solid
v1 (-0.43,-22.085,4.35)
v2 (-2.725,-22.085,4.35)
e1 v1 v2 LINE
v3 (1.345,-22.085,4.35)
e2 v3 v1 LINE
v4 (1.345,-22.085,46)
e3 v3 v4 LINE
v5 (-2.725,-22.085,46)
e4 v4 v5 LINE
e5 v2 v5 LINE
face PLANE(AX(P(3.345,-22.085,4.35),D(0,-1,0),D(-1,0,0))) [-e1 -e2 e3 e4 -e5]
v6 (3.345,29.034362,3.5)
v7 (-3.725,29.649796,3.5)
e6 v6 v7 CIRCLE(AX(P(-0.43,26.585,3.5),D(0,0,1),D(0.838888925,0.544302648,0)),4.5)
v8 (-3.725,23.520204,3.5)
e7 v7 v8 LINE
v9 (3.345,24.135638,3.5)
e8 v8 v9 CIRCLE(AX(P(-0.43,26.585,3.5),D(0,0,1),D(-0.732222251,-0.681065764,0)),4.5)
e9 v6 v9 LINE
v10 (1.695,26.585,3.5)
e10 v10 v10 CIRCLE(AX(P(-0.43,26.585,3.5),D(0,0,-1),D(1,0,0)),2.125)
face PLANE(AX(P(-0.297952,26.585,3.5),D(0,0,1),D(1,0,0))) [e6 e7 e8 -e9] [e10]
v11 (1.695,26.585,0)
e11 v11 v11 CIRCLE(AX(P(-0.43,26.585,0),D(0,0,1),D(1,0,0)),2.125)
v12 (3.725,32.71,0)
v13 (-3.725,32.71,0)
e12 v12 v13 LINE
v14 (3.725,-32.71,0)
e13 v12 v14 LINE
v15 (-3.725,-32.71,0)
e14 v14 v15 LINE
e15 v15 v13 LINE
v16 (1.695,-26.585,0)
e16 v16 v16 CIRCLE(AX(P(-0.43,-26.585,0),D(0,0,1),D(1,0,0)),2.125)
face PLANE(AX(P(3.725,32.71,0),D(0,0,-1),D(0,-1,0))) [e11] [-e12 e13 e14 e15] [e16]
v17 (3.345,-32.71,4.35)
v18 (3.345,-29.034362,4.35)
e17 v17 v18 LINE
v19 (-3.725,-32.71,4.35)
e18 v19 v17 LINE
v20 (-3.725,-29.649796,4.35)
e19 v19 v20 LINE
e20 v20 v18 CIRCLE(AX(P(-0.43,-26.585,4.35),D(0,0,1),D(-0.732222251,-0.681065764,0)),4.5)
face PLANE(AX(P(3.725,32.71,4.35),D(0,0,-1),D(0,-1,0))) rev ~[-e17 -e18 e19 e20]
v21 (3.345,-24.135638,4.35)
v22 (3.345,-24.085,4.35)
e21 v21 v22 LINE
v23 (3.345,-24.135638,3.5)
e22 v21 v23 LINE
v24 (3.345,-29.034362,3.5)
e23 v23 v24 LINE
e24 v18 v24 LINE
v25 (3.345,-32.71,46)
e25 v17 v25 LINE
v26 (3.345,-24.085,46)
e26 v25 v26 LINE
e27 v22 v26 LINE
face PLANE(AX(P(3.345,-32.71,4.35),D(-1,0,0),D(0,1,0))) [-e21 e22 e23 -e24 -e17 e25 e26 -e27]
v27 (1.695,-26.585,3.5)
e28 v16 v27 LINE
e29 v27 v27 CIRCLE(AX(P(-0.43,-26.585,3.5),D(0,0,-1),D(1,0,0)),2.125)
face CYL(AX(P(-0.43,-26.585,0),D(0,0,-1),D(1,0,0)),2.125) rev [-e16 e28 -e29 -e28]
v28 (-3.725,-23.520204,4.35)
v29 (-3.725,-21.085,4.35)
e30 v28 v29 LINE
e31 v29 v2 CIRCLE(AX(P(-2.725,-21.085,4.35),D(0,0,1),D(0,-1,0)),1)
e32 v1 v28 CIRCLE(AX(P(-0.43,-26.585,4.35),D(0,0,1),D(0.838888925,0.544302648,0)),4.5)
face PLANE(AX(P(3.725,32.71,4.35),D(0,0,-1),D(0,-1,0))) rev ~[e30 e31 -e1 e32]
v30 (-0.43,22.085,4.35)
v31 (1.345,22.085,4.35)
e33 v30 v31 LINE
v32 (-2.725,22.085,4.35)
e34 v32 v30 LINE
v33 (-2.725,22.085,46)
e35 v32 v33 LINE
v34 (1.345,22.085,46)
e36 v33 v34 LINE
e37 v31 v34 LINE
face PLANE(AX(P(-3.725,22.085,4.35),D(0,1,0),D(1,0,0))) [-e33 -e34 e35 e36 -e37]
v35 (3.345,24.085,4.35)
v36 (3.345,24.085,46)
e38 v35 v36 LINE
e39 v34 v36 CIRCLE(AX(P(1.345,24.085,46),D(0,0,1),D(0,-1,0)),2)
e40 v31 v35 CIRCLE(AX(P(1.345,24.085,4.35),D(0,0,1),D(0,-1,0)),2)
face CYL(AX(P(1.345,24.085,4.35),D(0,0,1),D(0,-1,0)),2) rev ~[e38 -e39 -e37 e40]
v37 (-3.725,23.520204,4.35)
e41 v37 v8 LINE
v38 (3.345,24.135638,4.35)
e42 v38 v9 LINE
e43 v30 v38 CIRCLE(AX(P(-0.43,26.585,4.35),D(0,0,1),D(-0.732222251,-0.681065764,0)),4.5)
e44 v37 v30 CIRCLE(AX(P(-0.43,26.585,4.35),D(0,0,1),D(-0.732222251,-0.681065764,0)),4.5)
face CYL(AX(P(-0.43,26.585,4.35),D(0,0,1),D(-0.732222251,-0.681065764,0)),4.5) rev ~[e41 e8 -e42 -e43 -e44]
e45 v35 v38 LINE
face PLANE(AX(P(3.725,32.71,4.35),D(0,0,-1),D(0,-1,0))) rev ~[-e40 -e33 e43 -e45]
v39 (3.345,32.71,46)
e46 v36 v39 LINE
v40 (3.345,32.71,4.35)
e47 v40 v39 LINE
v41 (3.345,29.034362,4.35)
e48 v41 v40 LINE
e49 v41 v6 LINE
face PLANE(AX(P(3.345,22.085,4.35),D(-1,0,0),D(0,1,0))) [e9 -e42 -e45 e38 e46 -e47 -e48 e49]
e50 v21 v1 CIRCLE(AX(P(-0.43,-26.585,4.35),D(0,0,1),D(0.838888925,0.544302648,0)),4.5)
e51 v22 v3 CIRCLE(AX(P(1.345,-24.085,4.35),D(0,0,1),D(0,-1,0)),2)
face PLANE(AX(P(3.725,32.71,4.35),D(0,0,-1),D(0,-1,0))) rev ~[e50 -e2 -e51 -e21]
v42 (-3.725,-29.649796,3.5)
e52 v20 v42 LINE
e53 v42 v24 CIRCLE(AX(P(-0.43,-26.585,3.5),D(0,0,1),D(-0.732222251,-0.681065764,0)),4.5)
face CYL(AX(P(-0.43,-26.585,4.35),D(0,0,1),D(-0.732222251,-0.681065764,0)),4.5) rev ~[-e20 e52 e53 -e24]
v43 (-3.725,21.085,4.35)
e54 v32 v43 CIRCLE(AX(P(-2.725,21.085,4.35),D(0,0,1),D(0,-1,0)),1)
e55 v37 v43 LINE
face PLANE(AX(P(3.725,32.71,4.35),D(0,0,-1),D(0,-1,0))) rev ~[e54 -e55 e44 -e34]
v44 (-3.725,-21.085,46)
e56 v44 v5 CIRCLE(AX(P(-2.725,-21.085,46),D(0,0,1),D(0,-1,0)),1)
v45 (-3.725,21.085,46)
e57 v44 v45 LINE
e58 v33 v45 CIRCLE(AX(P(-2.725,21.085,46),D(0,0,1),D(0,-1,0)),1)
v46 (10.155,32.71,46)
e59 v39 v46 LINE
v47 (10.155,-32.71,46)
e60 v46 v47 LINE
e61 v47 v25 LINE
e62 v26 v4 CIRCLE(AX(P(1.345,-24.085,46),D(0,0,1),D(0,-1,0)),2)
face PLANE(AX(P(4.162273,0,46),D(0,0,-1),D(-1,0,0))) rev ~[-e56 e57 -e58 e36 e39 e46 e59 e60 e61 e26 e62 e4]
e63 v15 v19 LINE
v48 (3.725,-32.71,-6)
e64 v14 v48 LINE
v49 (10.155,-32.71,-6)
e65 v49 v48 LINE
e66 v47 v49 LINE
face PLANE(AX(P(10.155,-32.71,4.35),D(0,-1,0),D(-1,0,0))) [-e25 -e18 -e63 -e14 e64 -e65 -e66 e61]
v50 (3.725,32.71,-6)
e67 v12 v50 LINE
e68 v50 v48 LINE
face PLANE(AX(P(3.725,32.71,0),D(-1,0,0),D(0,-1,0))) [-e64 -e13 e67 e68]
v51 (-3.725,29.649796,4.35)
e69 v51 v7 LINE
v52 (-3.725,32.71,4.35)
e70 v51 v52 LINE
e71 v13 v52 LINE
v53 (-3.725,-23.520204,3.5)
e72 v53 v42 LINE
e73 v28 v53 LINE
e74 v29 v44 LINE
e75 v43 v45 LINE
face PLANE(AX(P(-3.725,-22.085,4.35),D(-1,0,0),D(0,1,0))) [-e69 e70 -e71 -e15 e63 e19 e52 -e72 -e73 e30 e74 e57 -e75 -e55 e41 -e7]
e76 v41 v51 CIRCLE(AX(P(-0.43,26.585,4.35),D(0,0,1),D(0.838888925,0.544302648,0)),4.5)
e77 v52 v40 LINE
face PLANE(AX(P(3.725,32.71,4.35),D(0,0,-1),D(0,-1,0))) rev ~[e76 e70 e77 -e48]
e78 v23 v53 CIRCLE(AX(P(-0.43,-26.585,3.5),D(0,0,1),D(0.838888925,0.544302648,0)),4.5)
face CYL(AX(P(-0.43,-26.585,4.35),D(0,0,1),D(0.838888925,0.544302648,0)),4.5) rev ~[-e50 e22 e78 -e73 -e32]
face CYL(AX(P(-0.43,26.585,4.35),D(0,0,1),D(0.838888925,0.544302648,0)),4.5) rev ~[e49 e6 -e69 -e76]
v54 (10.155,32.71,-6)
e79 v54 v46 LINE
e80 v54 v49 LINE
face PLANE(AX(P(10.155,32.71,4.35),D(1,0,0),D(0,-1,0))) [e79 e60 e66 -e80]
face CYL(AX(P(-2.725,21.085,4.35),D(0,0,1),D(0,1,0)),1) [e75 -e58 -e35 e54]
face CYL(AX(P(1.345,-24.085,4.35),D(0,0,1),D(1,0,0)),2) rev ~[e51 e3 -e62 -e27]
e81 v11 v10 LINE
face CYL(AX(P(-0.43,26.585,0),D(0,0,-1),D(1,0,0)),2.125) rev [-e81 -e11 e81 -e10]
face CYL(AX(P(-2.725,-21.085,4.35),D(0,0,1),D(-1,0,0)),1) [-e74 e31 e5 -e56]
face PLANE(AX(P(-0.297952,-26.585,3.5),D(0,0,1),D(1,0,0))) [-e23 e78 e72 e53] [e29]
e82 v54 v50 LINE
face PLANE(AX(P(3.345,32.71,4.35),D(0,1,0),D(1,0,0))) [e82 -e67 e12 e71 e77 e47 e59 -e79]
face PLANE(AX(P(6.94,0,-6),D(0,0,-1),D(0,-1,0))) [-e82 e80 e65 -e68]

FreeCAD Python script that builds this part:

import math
import FreeCAD as App
import Part
import Sketcher
Q = App.Units.Quantity


def edges_at(feature, points):
    """Names of the edges that pass closest to the given points."""
    edges = feature.Shape.Edges
    near = lambda p: min(range(len(edges)), key=lambda i: edges[i].distToShape(Part.Vertex(*p))[0])
    return sorted({f"Edge{near(p) + 1}" for p in points})

doc = App.newDocument("Part")
body = doc.addObject("PartDesign::Body", "Body")

sketch1 = doc.addObject("Sketcher::SketchObject", "Sketch")
body.addObject(sketch1)
sketch1.AttachmentSupport = (doc.XY_Plane, [""])
sketch1.MapMode = "FlatFace"
sketch1.addGeometry([
    Part.LineSegment(App.Vector(-3.725, 32.71, 0), App.Vector(-3.725, -32.71, 0)),
    Part.LineSegment(App.Vector(-3.725, -32.71, 0), App.Vector(3.725, -32.71, 0)),
    Part.LineSegment(App.Vector(3.725, -32.71, 0), App.Vector(3.725, 32.71, 0)),
    Part.LineSegment(App.Vector(3.725, 32.71, 0), App.Vector(-3.725, 32.71, 0)),
    Part.Circle(App.Vector(-0.43, -26.585, 0), App.Vector(0, 0, 1), 2.125),
    Part.Circle(App.Vector(-0.43, 26.585, 0), App.Vector(0, 0, 1), 2.125),
], False)
sketch1.addConstraint([
    Sketcher.Constraint("Coincident", 0, 2, 1, 1),
    Sketcher.Constraint("Coincident", 1, 2, 2, 1),
    Sketcher.Constraint("Coincident", 2, 2, 3, 1),
    Sketcher.Constraint("Coincident", 3, 2, 0, 1),
    Sketcher.Constraint("Vertical", 0),
    Sketcher.Constraint("Horizontal", 1),
    Sketcher.Constraint("Vertical", 2),
    Sketcher.Constraint("Horizontal", 3),
    Sketcher.Constraint("Equal", 4, 5),
    Sketcher.Constraint("Symmetric", 0, 2, 2, 2, -1, 1),
    Sketcher.Constraint("Symmetric", 4, 3, 5, 3, -1),
    Sketcher.Constraint("Diameter", 4, Q("4.25 mm")),
    Sketcher.Constraint("DistanceX", 1, 1, 1, 2, Q("7.45 mm")),
    Sketcher.Constraint("DistanceY", 0, 2, 0, 1, Q("65.42 mm")),
    Sketcher.Constraint("DistanceX", 4, 3, -1, 1, Q("0.43 mm")),
    Sketcher.Constraint("DistanceY", 4, 3, 5, 3, Q("53.17 mm")),
])
pad1 = doc.addObject("PartDesign::Pad", "Pad")
body.addObject(pad1)
pad1.Profile = sketch1
pad1.Length = 4.35

sketch2 = doc.addObject("Sketcher::SketchObject", "Sketch001")
body.addObject(sketch2)
sketch2.AttachmentSupport = (doc.XY_Plane, [""])
sketch2.MapMode = "FlatFace"
sketch2.AttachmentOffset = App.Placement(App.Vector(0, 0, 4.35), App.Rotation())
sketch2.addGeometry([
    Part.ArcOfCircle(Part.Circle(App.Vector(-0.43, -26.585, 0), App.Vector(0, 0, 1), 4.5), math.radians(32.977022), math.radians(137.073018)),
    Part.LineSegment(App.Vector(-3.725, -23.520204, 0), App.Vector(-3.725, -29.649796, 0)),
    Part.ArcOfCircle(Part.Circle(App.Vector(-0.43, -26.585, 0), App.Vector(0, 0, 1), 4.5), math.radians(-137.073018), math.radians(-32.977022)),
    Part.LineSegment(App.Vector(3.345, -29.034362, 0), App.Vector(3.345, -24.135638, 0)),
    Part.ArcOfCircle(Part.Circle(App.Vector(-0.43, 26.585, 0), App.Vector(0, 0, 1), 4.5), math.radians(-137.073018), math.radians(-32.977022)),
    Part.LineSegment(App.Vector(3.345, 24.135638, 0), App.Vector(3.345, 29.034362, 0)),
    Part.ArcOfCircle(Part.Circle(App.Vector(-0.43, 26.585, 0), App.Vector(0, 0, 1), 4.5), math.radians(32.977022), math.radians(137.073018)),
    Part.LineSegment(App.Vector(-3.725, 29.649796, 0), App.Vector(-3.725, 23.520204, 0)),
], False)
sketch2.addConstraint([
    Sketcher.Constraint("Coincident", 0, 2, 1, 1),
    Sketcher.Constraint("Coincident", 1, 2, 2, 1),
    Sketcher.Constraint("Coincident", 2, 2, 3, 1),
    Sketcher.Constraint("Coincident", 3, 2, 0, 1),
    Sketcher.Constraint("Coincident", 4, 2, 5, 1),
    Sketcher.Constraint("Coincident", 5, 2, 6, 1),
    Sketcher.Constraint("Coincident", 6, 2, 7, 1),
    Sketcher.Constraint("Coincident", 7, 2, 4, 1),
    Sketcher.Constraint("Vertical", 1),
    Sketcher.Constraint("Vertical", 3),
    Sketcher.Constraint("Vertical", 5),
    Sketcher.Constraint("Vertical", 7),
    Sketcher.Constraint("Coincident", 2, 3, 0, 3),
    Sketcher.Constraint("Coincident", 6, 3, 4, 3),
    Sketcher.Constraint("Equal", 0, 2),
    Sketcher.Constraint("Equal", 2, 4),
    Sketcher.Constraint("Equal", 4, 6),
    Sketcher.Constraint("Symmetric", 0, 3, 4, 3, -1),
    Sketcher.Constraint("Vertical", 3, 2, 4, 2),
    Sketcher.Constraint("Vertical", 1, 2, 6, 2),
    Sketcher.Constraint("Radius", 0, Q("4.5 mm")),
    Sketcher.Constraint("DistanceX", 0, 3, -1, 1, Q("0.43 mm")),
    Sketcher.Constraint("DistanceY", 0, 3, 4, 3, Q("53.17 mm")),
    Sketcher.Constraint("DistanceX", 1, 2, 2, 2, Q("7.07 mm")),
    Sketcher.Constraint("DistanceX", 0, 2, -1, 1, Q("3.725 mm")),
])
pocket1 = doc.addObject("PartDesign::Pocket", "Pocket")
body.addObject(pocket1)
pocket1.Profile = sketch2
pocket1.Length = 0.85

sketch3 = doc.addObject("Sketcher::SketchObject", "Sketch002")
body.addObject(sketch3)
sketch3.AttachmentSupport = (doc.YZ_Plane, [""])
sketch3.MapMode = "FlatFace"
sketch3.AttachmentOffset = App.Placement(App.Vector(0, 0, 3.725), App.Rotation())
sketch3.addGeometry([
    Part.LineSegment(App.Vector(32.71, 0, 0), App.Vector(32.71, 4.35, 0)),
    Part.LineSegment(App.Vector(32.71, 4.35, 0), App.Vector(-32.71, 4.35, 0)),
    Part.LineSegment(App.Vector(-32.71, 4.35, 0), App.Vector(-32.71, 0, 0)),
    Part.LineSegment(App.Vector(-32.71, 0, 0), App.Vector(32.71, 0, 0)),
], False)
sketch3.addConstraint([
    Sketcher.Constraint("Coincident", 0, 2, 1, 1),
    Sketcher.Constraint("Coincident", 1, 2, 2, 1),
    Sketcher.Constraint("Coincident", 2, 2, 3, 1),
    Sketcher.Constraint("Coincident", 3, 2, 0, 1),
    Sketcher.Constraint("Vertical", 0),
    Sketcher.Constraint("Horizontal", 1),
    Sketcher.Constraint("Vertical", 2),
    Sketcher.Constraint("Horizontal", 3),
    Sketcher.Constraint("Symmetric", 2, 2, 3, 2, -1, 1),
    Sketcher.Constraint("DistanceX", 1, 2, 1, 1, Q("65.42 mm")),
    Sketcher.Constraint("DistanceY", 0, 1, 0, 2, Q("4.35 mm")),
])
pad2 = doc.addObject("PartDesign::Pad", "Pad001")
body.addObject(pad2)
pad2.Profile = sketch3
pad2.Length = 6.43

sketch4 = doc.addObject("Sketcher::SketchObject", "Sketch003")
body.addObject(sketch4)
sketch4.AttachmentSupport = (doc.XY_Plane, [""])
sketch4.MapMode = "FlatFace"
sketch4.addGeometry([
    Part.LineSegment(App.Vector(3.725, 32.71, 0), App.Vector(10.155, 32.71, 0)),
    Part.LineSegment(App.Vector(10.155, 32.71, 0), App.Vector(10.155, -32.71, 0)),
    Part.LineSegment(App.Vector(10.155, -32.71, 0), App.Vector(3.725, -32.71, 0)),
    Part.LineSegment(App.Vector(3.725, -32.71, 0), App.Vector(3.725, 32.71, 0)),
], False)
sketch4.addConstraint([
    Sketcher.Constraint("Coincident", 0, 2, 1, 1),
    Sketcher.Constraint("Coincident", 1, 2, 2, 1),
    Sketcher.Constraint("Coincident", 2, 2, 3, 1),
    Sketcher.Constraint("Coincident", 3, 2, 0, 1),
    Sketcher.Constraint("Horizontal", 0),
    Sketcher.Constraint("Vertical", 1),
    Sketcher.Constraint("Horizontal", 2),
    Sketcher.Constraint("Vertical", 3),
    Sketcher.Constraint("DistanceX", 0, 1, 0, 2, Q("6.43 mm")),
    Sketcher.Constraint("DistanceY", 1, 2, 1, 1, Q("65.42 mm")),
    Sketcher.Constraint("DistanceY", -1, 1, 0, 2, Q("32.71 mm")),
    Sketcher.Constraint("DistanceX", -1, 1, 0, 2, Q("10.155 mm")),
])
pad3 = doc.addObject("PartDesign::Pad", "Pad002")
body.addObject(pad3)
pad3.Profile = sketch4
pad3.Length = 6
pad3.Reversed = True

sketch5 = doc.addObject("Sketcher::SketchObject", "Sketch004")
body.addObject(sketch5)
sketch5.AttachmentSupport = (doc.XY_Plane, [""])
sketch5.MapMode = "FlatFace"
sketch5.AttachmentOffset = App.Placement(App.Vector(0, 0, 4.35), App.Rotation())
sketch5.addGeometry([
    Part.LineSegment(App.Vector(10.155, -32.71, 0), App.Vector(10.155, 32.71, 0)),
    Part.LineSegment(App.Vector(10.155, 32.71, 0), App.Vector(3.345, 32.71, 0)),
    Part.LineSegment(App.Vector(3.345, 32.71, 0), App.Vector(3.345, 22.085, 0)),
    Part.LineSegment(App.Vector(3.345, 22.085, 0), App.Vector(-3.725, 22.085, 0)),
    Part.LineSegment(App.Vector(-3.725, 22.085, 0), App.Vector(-3.725, -22.085, 0)),
    Part.LineSegment(App.Vector(-3.725, -22.085, 0), App.Vector(3.345, -22.085, 0)),
    Part.LineSegment(App.Vector(3.345, -22.085, 0), App.Vector(3.345, -32.71, 0)),
    Part.LineSegment(App.Vector(3.345, -32.71, 0), App.Vector(10.155, -32.71, 0)),
], False)
sketch5.addConstraint([
    Sketcher.Constraint("Coincident", 0, 2, 1, 1),
    Sketcher.Constraint("Coincident", 1, 2, 2, 1),
    Sketcher.Constraint("Coincident", 2, 2, 3, 1),
    Sketcher.Constraint("Coincident", 3, 2, 4, 1),
    Sketcher.Constraint("Coincident", 4, 2, 5, 1),
    Sketcher.Constraint("Coincident", 5, 2, 6, 1),
    Sketcher.Constraint("Coincident", 6, 2, 7, 1),
    Sketcher.Constraint("Coincident", 7, 2, 0, 1),
    Sketcher.Constraint("Vertical", 0),
    Sketcher.Constraint("Horizontal", 1),
    Sketcher.Constraint("Vertical", 2),
    Sketcher.Constraint("Horizontal", 3),
    Sketcher.Constraint("Vertical", 4),
    Sketcher.Constraint("Horizontal", 5),
    Sketcher.Constraint("Vertical", 6),
    Sketcher.Constraint("Horizontal", 7),
    Sketcher.Constraint("Symmetric", 2, 2, 5, 2, -1),
    Sketcher.Constraint("Equal", 2, 6),
    Sketcher.Constraint("DistanceX", 1, 2, 1, 1, Q("6.81 mm")),
    Sketcher.Constraint("DistanceX", 3, 2, 3, 1, Q("7.07 mm")),
    Sketcher.Constraint("DistanceY", 0, 1, 0, 2, Q("65.42 mm")),
    Sketcher.Constraint("DistanceY", 4, 2, 4, 1, Q("44.17 mm")),
    Sketcher.Constraint("DistanceX", -1, 1, 0, 2, Q("10.155 mm")),
])
pad4 = doc.addObject("PartDesign::Pad", "Pad003")
body.addObject(pad4)
pad4.Profile = sketch5
pad4.Length = 41.65
doc.recompute()

fillet = doc.addObject("PartDesign::Fillet", "Fillet")
body.addObject(fillet)
fillet.Base = (pad4, edges_at(pad4, [(3.345, -22.085, 25.175), (3.345, 22.085, 25.175)]))
fillet.Radius = 2
doc.recompute()

fillet2 = doc.addObject("PartDesign::Fillet", "Fillet001")
body.addObject(fillet2)
fillet2.Base = (fillet, edges_at(fillet, [(-3.725, -22.085, 25.175), (-3.725, 22.085, 25.175)]))
fillet2.Radius = 1

doc.recompute()
